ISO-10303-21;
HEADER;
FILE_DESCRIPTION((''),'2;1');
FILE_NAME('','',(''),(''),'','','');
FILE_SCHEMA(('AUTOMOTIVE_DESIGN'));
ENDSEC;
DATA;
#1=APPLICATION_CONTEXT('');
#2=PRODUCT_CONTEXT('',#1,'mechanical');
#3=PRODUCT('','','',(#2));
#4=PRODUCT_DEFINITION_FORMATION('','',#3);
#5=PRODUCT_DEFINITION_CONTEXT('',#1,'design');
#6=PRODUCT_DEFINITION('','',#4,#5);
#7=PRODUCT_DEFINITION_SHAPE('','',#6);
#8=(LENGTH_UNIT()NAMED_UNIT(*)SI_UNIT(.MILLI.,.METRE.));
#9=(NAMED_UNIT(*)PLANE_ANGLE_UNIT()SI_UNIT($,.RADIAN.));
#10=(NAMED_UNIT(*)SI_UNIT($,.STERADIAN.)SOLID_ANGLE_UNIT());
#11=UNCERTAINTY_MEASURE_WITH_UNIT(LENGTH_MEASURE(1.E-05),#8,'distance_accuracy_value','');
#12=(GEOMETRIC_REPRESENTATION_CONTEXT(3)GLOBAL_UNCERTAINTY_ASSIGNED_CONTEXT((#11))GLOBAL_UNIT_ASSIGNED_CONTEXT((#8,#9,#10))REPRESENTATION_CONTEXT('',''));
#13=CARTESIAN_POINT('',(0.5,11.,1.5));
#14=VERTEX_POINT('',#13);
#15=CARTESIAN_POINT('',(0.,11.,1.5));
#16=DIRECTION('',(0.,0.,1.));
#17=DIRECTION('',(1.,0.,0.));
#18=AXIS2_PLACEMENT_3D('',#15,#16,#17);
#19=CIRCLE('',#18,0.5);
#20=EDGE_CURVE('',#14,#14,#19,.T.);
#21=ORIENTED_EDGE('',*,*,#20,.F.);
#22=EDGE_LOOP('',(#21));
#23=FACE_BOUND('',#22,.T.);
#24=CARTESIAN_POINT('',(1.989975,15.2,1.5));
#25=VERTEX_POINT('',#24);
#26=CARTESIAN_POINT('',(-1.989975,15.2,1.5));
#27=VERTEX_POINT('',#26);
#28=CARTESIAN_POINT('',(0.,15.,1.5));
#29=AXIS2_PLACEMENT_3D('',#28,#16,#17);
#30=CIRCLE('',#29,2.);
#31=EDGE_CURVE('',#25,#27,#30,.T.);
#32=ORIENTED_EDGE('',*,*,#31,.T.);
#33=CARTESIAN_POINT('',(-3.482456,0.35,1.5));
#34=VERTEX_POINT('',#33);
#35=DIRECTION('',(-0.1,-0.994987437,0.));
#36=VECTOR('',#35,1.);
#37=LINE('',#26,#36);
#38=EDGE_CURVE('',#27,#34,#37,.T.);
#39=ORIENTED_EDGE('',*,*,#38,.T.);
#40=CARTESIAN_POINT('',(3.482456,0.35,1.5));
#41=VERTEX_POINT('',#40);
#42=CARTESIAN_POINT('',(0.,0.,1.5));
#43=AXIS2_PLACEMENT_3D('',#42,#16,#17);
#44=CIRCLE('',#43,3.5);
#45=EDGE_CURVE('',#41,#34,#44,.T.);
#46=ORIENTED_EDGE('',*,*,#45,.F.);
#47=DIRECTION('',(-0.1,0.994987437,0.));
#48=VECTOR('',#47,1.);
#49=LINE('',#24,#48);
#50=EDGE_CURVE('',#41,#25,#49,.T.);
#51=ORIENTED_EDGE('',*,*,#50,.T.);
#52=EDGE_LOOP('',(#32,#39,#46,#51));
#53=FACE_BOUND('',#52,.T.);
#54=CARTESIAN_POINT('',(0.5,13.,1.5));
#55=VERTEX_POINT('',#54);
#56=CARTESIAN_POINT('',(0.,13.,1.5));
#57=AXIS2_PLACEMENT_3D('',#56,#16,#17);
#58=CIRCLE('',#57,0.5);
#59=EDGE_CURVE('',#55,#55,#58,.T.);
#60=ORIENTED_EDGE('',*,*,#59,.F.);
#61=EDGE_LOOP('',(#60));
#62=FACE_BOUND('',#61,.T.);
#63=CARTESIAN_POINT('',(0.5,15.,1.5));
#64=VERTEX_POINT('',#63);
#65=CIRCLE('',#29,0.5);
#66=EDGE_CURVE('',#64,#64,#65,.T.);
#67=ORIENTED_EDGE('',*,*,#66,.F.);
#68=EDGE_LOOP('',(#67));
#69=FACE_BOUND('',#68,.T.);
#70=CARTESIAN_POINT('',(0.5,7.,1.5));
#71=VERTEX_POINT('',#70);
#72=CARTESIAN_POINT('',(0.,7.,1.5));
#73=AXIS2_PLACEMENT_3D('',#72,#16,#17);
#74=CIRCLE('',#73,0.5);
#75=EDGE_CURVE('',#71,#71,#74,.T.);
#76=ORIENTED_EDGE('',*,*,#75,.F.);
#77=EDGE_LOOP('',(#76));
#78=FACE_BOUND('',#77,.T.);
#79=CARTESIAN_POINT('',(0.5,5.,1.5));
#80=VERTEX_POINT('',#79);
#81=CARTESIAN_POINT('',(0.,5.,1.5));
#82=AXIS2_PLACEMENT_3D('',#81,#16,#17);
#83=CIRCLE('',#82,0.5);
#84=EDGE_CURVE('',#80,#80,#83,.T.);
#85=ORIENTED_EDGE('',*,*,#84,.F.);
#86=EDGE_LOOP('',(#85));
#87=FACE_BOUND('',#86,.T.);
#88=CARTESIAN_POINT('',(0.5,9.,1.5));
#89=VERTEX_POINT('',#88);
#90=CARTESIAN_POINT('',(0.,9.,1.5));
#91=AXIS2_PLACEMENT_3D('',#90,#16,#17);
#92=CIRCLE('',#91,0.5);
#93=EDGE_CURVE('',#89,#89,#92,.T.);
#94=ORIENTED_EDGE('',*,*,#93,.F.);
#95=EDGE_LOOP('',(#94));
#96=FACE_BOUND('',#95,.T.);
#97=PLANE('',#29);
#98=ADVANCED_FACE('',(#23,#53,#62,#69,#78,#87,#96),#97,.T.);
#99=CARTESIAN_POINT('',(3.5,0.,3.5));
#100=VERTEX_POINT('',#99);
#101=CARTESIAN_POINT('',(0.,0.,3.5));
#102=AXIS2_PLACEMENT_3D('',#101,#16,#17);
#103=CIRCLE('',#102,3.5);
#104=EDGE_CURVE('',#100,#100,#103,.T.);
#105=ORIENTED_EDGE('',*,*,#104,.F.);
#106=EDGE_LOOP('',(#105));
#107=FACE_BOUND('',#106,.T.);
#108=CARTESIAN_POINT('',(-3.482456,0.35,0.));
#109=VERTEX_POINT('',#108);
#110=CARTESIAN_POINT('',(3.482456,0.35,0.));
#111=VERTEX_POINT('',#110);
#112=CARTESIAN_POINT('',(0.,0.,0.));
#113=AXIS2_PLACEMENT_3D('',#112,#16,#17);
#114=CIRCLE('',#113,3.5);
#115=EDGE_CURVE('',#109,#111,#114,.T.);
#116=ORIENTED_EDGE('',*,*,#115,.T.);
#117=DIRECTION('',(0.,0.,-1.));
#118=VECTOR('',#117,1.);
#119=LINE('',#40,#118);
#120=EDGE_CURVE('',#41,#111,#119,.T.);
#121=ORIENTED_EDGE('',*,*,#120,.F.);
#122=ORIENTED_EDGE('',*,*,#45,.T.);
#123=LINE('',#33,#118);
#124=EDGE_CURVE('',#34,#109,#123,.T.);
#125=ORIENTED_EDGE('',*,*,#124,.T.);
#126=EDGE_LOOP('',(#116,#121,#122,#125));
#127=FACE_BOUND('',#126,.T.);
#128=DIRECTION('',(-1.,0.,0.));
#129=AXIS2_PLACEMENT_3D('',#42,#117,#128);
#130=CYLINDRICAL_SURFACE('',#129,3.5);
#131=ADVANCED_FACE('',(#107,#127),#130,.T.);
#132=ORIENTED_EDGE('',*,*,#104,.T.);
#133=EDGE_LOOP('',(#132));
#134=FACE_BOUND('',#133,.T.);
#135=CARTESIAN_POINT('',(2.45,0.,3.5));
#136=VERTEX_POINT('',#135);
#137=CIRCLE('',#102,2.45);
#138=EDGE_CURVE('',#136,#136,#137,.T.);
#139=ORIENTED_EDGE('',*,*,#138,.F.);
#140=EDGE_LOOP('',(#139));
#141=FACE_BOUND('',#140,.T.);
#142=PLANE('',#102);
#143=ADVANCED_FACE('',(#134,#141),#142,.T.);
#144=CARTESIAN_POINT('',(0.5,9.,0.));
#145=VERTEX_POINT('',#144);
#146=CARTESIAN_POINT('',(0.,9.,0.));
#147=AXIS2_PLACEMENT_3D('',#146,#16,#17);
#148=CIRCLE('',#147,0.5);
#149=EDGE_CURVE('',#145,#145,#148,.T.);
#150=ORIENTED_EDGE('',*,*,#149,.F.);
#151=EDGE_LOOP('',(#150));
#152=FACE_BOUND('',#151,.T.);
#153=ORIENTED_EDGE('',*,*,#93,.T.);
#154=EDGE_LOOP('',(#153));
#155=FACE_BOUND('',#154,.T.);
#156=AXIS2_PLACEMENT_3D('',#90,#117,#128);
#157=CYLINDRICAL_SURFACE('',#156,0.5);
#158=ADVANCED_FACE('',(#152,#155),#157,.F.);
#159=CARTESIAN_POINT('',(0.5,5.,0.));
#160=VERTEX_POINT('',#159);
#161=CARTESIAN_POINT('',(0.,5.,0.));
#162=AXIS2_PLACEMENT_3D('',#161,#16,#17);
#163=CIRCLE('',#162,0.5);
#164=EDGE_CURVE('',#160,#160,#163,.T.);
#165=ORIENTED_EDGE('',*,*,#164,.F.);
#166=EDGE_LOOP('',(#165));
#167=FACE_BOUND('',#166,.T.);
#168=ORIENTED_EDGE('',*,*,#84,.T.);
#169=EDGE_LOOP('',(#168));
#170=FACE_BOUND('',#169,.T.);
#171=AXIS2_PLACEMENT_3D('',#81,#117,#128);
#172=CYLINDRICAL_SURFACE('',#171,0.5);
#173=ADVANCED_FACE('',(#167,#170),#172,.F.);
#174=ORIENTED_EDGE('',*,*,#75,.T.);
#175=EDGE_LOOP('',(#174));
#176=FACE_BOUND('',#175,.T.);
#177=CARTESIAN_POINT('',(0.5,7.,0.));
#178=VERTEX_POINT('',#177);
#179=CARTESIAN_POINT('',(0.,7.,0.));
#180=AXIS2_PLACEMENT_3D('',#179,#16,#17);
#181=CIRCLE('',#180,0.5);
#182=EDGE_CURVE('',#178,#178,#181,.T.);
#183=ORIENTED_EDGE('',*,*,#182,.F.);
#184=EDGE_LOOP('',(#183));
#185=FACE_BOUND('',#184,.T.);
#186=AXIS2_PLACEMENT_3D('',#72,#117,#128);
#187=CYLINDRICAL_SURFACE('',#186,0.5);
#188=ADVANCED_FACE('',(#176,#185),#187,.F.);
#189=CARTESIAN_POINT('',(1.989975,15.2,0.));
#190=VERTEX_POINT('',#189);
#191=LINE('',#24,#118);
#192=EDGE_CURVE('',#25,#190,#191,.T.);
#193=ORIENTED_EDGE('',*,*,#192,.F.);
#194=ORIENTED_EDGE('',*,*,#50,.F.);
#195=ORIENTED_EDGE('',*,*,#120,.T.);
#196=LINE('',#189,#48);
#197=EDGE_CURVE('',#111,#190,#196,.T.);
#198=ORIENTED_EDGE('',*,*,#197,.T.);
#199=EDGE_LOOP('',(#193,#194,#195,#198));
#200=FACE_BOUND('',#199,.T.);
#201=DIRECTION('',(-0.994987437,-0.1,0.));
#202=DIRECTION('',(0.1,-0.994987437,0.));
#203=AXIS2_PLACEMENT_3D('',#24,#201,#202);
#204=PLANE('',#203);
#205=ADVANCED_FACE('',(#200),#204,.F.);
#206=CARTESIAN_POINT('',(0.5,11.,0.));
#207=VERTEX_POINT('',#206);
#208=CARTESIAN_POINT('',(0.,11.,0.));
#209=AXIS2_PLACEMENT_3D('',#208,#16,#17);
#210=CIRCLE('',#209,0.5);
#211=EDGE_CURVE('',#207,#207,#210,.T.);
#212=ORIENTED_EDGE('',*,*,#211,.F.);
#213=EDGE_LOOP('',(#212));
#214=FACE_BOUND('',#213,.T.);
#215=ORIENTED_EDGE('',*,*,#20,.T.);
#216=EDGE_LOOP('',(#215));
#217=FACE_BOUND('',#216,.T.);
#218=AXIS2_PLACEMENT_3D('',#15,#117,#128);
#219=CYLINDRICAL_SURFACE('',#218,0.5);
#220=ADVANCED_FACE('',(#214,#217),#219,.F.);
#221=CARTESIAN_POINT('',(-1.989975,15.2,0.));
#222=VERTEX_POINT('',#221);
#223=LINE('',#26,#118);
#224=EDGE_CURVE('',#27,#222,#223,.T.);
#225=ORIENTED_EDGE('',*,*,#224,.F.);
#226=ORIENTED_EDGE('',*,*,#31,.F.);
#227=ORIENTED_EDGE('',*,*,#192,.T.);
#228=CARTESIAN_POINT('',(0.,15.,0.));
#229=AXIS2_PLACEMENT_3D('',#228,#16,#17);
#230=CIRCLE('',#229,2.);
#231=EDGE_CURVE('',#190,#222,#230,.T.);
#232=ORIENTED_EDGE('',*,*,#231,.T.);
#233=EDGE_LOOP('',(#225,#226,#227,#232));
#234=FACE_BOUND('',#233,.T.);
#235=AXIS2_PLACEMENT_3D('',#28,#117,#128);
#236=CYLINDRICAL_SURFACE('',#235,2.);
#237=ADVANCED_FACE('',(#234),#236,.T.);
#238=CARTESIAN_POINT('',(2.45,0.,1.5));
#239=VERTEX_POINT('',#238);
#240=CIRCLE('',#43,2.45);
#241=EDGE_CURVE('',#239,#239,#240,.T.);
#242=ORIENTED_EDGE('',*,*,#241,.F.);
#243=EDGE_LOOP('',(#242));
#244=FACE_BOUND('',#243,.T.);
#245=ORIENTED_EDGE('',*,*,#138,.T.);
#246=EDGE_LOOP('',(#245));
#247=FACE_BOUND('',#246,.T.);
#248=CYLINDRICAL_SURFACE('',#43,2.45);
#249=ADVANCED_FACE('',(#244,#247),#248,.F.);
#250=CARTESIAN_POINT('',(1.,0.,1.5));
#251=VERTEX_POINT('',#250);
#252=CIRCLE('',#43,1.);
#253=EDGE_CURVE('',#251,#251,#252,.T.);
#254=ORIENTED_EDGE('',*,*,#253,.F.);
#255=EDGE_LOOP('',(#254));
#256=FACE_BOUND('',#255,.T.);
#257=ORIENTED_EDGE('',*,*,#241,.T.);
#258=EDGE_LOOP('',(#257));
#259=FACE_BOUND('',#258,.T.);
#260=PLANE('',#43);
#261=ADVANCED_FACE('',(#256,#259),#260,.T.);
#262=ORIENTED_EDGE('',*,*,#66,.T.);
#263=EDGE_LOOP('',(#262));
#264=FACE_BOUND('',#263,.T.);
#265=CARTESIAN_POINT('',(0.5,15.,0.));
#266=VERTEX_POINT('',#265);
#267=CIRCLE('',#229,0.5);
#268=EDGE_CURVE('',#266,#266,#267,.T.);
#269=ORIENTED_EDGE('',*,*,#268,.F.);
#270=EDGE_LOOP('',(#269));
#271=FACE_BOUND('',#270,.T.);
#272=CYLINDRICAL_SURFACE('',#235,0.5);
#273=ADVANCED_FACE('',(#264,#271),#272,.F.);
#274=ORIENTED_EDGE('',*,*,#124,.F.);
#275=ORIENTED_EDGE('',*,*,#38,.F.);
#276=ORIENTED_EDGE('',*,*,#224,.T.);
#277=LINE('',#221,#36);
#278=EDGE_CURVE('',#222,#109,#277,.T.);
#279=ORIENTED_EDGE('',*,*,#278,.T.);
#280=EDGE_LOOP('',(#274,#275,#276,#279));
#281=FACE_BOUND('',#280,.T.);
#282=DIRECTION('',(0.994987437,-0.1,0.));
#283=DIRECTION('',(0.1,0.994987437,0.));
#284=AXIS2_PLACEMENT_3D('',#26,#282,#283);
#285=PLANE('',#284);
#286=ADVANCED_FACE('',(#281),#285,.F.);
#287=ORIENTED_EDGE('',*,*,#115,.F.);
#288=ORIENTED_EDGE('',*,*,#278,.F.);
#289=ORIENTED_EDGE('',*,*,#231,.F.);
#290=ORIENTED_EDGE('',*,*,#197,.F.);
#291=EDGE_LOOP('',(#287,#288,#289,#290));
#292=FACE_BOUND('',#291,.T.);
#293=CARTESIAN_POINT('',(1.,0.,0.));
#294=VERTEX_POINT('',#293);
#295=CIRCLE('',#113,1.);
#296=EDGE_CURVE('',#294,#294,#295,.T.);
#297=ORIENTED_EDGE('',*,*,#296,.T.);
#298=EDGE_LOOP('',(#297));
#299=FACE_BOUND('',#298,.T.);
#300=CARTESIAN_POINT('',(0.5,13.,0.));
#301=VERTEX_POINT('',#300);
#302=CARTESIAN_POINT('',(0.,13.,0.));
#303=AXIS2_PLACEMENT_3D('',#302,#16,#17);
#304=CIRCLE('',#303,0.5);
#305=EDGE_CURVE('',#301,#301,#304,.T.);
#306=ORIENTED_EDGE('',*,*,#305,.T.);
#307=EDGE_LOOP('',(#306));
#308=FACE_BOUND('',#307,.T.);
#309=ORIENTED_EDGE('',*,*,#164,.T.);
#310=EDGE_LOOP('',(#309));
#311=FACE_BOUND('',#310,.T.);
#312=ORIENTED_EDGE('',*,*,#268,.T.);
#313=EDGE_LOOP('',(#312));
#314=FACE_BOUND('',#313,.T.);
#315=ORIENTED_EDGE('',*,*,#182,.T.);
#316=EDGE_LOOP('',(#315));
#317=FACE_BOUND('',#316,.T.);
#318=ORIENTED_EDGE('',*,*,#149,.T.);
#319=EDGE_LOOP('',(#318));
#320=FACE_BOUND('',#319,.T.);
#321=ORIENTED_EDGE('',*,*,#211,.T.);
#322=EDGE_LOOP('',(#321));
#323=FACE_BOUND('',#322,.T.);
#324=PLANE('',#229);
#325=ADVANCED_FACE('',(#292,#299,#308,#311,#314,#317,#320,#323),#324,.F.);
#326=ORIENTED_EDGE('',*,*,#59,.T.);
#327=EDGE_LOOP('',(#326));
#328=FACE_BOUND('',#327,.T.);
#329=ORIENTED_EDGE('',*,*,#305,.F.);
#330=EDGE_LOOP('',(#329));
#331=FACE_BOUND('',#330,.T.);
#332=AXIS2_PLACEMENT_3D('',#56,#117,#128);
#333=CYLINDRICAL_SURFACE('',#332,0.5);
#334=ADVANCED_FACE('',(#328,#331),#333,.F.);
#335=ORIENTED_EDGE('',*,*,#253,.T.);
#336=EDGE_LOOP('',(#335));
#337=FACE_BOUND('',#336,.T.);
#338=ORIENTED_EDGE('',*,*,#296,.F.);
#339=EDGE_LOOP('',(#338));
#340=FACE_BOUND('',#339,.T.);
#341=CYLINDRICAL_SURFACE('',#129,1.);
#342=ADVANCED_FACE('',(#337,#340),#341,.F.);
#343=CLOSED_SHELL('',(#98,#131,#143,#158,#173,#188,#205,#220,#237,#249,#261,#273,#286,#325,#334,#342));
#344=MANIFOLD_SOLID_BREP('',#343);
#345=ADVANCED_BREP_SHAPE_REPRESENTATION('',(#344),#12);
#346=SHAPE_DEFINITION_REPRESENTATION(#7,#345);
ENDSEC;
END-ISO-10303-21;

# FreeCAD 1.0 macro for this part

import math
import FreeCAD as App
import Part
import Sketcher

doc = App.newDocument("Part")
body = doc.addObject("PartDesign::Body", "Body")

sketch1 = doc.addObject("Sketcher::SketchObject", "Sketch")
body.addObject(sketch1)
sketch1.AttachmentSupport = (doc.XY_Plane, [""])
sketch1.MapMode = "FlatFace"
sketch1.addGeometry(Part.LineSegment(App.Vector(-2, 15.2, 0), App.Vector(-3.5, 0.3, 0)), False)
sketch1.addGeometry(Part.ArcOfCircle(Part.Circle(App.Vector(0, 0, 0), App.Vector(0, 0, 1), 3.5), math.radians(174), math.radians(366)), False)
sketch1.addGeometry(Part.LineSegment(App.Vector(3.5, 0.3, 0), App.Vector(2, 15.2, 0)), False)
sketch1.addGeometry(Part.ArcOfCircle(Part.Circle(App.Vector(0, 15, 0), App.Vector(0, 0, 1), 2), math.radians(6), math.radians(174)), False)
sketch1.addGeometry(Part.Circle(App.Vector(0, 0, 0), App.Vector(0, 0, 1), 1), False)
sketch1.addGeometry(Part.Circle(App.Vector(0, 5, 0), App.Vector(0, 0, 1), 0.5), False)
sketch1.addGeometry(Part.Circle(App.Vector(0, 7, 0), App.Vector(0, 0, 1), 0.5), False)
sketch1.addGeometry(Part.Circle(App.Vector(0, 9, 0), App.Vector(0, 0, 1), 0.5), False)
sketch1.addGeometry(Part.Circle(App.Vector(0, 11, 0), App.Vector(0, 0, 1), 0.5), False)
sketch1.addGeometry(Part.Circle(App.Vector(0, 13, 0), App.Vector(0, 0, 1), 0.5), False)
sketch1.addGeometry(Part.Circle(App.Vector(0, 15, 0), App.Vector(0, 0, 1), 0.5), False)
sketch1.addConstraint(Sketcher.Constraint("Tangent", 0, 2, 1, 1))
sketch1.addConstraint(Sketcher.Constraint("Tangent", 1, 2, 2, 1))
sketch1.addConstraint(Sketcher.Constraint("Tangent", 2, 2, 3, 1))
sketch1.addConstraint(Sketcher.Constraint("Tangent", 3, 2, 0, 1))
sketch1.addConstraint(Sketcher.Constraint("Coincident", 1, 3, -1, 1))
sketch1.addConstraint(Sketcher.Constraint("Coincident", 4, 3, -1, 1))
sketch1.addConstraint(Sketcher.Constraint("Coincident", 10, 3, 3, 3))
sketch1.addConstraint(Sketcher.Constraint("Equal", 5, 6))
sketch1.addConstraint(Sketcher.Constraint("Equal", 6, 7))
sketch1.addConstraint(Sketcher.Constraint("Equal", 7, 8))
sketch1.addConstraint(Sketcher.Constraint("Equal", 8, 9))
sketch1.addConstraint(Sketcher.Constraint("Equal", 9, 10))
sketch1.addConstraint(Sketcher.Constraint("PointOnObject", 3, 3, -2))
sketch1.addConstraint(Sketcher.Constraint("PointOnObject", 5, 3, -2))
sketch1.addConstraint(Sketcher.Constraint("PointOnObject", 6, 3, -2))
sketch1.addConstraint(Sketcher.Constraint("PointOnObject", 7, 3, -2))
sketch1.addConstraint(Sketcher.Constraint("PointOnObject", 8, 3, -2))
sketch1.addConstraint(Sketcher.Constraint("PointOnObject", 9, 3, -2))
sketch1.addConstraint(Sketcher.Constraint("Diameter", 4, 2.0))
sketch1.addConstraint(Sketcher.Constraint("Diameter", 5, 1.0))
sketch1.addConstraint(Sketcher.Constraint("Radius", 3, 2.0))
sketch1.addConstraint(Sketcher.Constraint("Radius", 1, 3.5))
sketch1.addConstraint(Sketcher.Constraint("DistanceY", -1, 1, 3, 3, 15.0))
sketch1.addConstraint(Sketcher.Constraint("DistanceY", -1, 1, 5, 3, 5.0))
sketch1.addConstraint(Sketcher.Constraint("DistanceY", -1, 1, 6, 3, 7.0))
sketch1.addConstraint(Sketcher.Constraint("DistanceY", -1, 1, 7, 3, 9.0))
sketch1.addConstraint(Sketcher.Constraint("DistanceY", -1, 1, 8, 3, 11.0))
sketch1.addConstraint(Sketcher.Constraint("DistanceY", -1, 1, 9, 3, 13.0))
pad1 = doc.addObject("PartDesign::Pad", "Pad")
body.addObject(pad1)
pad1.Profile = sketch1
pad1.Length = 1.5

sketch2 = doc.addObject("Sketcher::SketchObject", "Sketch001")
body.addObject(sketch2)
sketch2.AttachmentSupport = (doc.XY_Plane, [""])
sketch2.MapMode = "FlatFace"
sketch2.AttachmentOffset = App.Placement(App.Vector(0, 0, 1.5), App.Rotation())
sketch2.addGeometry(Part.Circle(App.Vector(0, 0, 0), App.Vector(0, 0, 1), 3.5), False)
sketch2.addGeometry(Part.Circle(App.Vector(0, 0, 0), App.Vector(0, 0, 1), 1), False)
sketch2.addConstraint(Sketcher.Constraint("Coincident", 0, 3, -1, 1))
sketch2.addConstraint(Sketcher.Constraint("Coincident", 1, 3, -1, 1))
sketch2.addConstraint(Sketcher.Constraint("Diameter", 0, 7.0))
sketch2.addConstraint(Sketcher.Constraint("Diameter", 1, 2.0))
pad2 = doc.addObject("PartDesign::Pad", "Pad001")
body.addObject(pad2)
pad2.Profile = sketch2
pad2.Length = 2

sketch3 = doc.addObject("Sketcher::SketchObject", "Sketch002")
body.addObject(sketch3)
sketch3.AttachmentSupport = (doc.XY_Plane, [""])
sketch3.MapMode = "FlatFace"
sketch3.AttachmentOffset = App.Placement(App.Vector(0, 0, 3.5), App.Rotation())
sketch3.addGeometry(Part.Circle(App.Vector(0, 0, 0), App.Vector(0, 0, 1), 2.5), False)
sketch3.addConstraint(Sketcher.Constraint("Coincident", 0, 3, -1, 1))
sketch3.addConstraint(Sketcher.Constraint("Diameter", 0, 4.9))
pocket1 = doc.addObject("PartDesign::Pocket", "Pocket")
body.addObject(pocket1)
pocket1.Profile = sketch3
pocket1.Length = 2

doc.recompute()
